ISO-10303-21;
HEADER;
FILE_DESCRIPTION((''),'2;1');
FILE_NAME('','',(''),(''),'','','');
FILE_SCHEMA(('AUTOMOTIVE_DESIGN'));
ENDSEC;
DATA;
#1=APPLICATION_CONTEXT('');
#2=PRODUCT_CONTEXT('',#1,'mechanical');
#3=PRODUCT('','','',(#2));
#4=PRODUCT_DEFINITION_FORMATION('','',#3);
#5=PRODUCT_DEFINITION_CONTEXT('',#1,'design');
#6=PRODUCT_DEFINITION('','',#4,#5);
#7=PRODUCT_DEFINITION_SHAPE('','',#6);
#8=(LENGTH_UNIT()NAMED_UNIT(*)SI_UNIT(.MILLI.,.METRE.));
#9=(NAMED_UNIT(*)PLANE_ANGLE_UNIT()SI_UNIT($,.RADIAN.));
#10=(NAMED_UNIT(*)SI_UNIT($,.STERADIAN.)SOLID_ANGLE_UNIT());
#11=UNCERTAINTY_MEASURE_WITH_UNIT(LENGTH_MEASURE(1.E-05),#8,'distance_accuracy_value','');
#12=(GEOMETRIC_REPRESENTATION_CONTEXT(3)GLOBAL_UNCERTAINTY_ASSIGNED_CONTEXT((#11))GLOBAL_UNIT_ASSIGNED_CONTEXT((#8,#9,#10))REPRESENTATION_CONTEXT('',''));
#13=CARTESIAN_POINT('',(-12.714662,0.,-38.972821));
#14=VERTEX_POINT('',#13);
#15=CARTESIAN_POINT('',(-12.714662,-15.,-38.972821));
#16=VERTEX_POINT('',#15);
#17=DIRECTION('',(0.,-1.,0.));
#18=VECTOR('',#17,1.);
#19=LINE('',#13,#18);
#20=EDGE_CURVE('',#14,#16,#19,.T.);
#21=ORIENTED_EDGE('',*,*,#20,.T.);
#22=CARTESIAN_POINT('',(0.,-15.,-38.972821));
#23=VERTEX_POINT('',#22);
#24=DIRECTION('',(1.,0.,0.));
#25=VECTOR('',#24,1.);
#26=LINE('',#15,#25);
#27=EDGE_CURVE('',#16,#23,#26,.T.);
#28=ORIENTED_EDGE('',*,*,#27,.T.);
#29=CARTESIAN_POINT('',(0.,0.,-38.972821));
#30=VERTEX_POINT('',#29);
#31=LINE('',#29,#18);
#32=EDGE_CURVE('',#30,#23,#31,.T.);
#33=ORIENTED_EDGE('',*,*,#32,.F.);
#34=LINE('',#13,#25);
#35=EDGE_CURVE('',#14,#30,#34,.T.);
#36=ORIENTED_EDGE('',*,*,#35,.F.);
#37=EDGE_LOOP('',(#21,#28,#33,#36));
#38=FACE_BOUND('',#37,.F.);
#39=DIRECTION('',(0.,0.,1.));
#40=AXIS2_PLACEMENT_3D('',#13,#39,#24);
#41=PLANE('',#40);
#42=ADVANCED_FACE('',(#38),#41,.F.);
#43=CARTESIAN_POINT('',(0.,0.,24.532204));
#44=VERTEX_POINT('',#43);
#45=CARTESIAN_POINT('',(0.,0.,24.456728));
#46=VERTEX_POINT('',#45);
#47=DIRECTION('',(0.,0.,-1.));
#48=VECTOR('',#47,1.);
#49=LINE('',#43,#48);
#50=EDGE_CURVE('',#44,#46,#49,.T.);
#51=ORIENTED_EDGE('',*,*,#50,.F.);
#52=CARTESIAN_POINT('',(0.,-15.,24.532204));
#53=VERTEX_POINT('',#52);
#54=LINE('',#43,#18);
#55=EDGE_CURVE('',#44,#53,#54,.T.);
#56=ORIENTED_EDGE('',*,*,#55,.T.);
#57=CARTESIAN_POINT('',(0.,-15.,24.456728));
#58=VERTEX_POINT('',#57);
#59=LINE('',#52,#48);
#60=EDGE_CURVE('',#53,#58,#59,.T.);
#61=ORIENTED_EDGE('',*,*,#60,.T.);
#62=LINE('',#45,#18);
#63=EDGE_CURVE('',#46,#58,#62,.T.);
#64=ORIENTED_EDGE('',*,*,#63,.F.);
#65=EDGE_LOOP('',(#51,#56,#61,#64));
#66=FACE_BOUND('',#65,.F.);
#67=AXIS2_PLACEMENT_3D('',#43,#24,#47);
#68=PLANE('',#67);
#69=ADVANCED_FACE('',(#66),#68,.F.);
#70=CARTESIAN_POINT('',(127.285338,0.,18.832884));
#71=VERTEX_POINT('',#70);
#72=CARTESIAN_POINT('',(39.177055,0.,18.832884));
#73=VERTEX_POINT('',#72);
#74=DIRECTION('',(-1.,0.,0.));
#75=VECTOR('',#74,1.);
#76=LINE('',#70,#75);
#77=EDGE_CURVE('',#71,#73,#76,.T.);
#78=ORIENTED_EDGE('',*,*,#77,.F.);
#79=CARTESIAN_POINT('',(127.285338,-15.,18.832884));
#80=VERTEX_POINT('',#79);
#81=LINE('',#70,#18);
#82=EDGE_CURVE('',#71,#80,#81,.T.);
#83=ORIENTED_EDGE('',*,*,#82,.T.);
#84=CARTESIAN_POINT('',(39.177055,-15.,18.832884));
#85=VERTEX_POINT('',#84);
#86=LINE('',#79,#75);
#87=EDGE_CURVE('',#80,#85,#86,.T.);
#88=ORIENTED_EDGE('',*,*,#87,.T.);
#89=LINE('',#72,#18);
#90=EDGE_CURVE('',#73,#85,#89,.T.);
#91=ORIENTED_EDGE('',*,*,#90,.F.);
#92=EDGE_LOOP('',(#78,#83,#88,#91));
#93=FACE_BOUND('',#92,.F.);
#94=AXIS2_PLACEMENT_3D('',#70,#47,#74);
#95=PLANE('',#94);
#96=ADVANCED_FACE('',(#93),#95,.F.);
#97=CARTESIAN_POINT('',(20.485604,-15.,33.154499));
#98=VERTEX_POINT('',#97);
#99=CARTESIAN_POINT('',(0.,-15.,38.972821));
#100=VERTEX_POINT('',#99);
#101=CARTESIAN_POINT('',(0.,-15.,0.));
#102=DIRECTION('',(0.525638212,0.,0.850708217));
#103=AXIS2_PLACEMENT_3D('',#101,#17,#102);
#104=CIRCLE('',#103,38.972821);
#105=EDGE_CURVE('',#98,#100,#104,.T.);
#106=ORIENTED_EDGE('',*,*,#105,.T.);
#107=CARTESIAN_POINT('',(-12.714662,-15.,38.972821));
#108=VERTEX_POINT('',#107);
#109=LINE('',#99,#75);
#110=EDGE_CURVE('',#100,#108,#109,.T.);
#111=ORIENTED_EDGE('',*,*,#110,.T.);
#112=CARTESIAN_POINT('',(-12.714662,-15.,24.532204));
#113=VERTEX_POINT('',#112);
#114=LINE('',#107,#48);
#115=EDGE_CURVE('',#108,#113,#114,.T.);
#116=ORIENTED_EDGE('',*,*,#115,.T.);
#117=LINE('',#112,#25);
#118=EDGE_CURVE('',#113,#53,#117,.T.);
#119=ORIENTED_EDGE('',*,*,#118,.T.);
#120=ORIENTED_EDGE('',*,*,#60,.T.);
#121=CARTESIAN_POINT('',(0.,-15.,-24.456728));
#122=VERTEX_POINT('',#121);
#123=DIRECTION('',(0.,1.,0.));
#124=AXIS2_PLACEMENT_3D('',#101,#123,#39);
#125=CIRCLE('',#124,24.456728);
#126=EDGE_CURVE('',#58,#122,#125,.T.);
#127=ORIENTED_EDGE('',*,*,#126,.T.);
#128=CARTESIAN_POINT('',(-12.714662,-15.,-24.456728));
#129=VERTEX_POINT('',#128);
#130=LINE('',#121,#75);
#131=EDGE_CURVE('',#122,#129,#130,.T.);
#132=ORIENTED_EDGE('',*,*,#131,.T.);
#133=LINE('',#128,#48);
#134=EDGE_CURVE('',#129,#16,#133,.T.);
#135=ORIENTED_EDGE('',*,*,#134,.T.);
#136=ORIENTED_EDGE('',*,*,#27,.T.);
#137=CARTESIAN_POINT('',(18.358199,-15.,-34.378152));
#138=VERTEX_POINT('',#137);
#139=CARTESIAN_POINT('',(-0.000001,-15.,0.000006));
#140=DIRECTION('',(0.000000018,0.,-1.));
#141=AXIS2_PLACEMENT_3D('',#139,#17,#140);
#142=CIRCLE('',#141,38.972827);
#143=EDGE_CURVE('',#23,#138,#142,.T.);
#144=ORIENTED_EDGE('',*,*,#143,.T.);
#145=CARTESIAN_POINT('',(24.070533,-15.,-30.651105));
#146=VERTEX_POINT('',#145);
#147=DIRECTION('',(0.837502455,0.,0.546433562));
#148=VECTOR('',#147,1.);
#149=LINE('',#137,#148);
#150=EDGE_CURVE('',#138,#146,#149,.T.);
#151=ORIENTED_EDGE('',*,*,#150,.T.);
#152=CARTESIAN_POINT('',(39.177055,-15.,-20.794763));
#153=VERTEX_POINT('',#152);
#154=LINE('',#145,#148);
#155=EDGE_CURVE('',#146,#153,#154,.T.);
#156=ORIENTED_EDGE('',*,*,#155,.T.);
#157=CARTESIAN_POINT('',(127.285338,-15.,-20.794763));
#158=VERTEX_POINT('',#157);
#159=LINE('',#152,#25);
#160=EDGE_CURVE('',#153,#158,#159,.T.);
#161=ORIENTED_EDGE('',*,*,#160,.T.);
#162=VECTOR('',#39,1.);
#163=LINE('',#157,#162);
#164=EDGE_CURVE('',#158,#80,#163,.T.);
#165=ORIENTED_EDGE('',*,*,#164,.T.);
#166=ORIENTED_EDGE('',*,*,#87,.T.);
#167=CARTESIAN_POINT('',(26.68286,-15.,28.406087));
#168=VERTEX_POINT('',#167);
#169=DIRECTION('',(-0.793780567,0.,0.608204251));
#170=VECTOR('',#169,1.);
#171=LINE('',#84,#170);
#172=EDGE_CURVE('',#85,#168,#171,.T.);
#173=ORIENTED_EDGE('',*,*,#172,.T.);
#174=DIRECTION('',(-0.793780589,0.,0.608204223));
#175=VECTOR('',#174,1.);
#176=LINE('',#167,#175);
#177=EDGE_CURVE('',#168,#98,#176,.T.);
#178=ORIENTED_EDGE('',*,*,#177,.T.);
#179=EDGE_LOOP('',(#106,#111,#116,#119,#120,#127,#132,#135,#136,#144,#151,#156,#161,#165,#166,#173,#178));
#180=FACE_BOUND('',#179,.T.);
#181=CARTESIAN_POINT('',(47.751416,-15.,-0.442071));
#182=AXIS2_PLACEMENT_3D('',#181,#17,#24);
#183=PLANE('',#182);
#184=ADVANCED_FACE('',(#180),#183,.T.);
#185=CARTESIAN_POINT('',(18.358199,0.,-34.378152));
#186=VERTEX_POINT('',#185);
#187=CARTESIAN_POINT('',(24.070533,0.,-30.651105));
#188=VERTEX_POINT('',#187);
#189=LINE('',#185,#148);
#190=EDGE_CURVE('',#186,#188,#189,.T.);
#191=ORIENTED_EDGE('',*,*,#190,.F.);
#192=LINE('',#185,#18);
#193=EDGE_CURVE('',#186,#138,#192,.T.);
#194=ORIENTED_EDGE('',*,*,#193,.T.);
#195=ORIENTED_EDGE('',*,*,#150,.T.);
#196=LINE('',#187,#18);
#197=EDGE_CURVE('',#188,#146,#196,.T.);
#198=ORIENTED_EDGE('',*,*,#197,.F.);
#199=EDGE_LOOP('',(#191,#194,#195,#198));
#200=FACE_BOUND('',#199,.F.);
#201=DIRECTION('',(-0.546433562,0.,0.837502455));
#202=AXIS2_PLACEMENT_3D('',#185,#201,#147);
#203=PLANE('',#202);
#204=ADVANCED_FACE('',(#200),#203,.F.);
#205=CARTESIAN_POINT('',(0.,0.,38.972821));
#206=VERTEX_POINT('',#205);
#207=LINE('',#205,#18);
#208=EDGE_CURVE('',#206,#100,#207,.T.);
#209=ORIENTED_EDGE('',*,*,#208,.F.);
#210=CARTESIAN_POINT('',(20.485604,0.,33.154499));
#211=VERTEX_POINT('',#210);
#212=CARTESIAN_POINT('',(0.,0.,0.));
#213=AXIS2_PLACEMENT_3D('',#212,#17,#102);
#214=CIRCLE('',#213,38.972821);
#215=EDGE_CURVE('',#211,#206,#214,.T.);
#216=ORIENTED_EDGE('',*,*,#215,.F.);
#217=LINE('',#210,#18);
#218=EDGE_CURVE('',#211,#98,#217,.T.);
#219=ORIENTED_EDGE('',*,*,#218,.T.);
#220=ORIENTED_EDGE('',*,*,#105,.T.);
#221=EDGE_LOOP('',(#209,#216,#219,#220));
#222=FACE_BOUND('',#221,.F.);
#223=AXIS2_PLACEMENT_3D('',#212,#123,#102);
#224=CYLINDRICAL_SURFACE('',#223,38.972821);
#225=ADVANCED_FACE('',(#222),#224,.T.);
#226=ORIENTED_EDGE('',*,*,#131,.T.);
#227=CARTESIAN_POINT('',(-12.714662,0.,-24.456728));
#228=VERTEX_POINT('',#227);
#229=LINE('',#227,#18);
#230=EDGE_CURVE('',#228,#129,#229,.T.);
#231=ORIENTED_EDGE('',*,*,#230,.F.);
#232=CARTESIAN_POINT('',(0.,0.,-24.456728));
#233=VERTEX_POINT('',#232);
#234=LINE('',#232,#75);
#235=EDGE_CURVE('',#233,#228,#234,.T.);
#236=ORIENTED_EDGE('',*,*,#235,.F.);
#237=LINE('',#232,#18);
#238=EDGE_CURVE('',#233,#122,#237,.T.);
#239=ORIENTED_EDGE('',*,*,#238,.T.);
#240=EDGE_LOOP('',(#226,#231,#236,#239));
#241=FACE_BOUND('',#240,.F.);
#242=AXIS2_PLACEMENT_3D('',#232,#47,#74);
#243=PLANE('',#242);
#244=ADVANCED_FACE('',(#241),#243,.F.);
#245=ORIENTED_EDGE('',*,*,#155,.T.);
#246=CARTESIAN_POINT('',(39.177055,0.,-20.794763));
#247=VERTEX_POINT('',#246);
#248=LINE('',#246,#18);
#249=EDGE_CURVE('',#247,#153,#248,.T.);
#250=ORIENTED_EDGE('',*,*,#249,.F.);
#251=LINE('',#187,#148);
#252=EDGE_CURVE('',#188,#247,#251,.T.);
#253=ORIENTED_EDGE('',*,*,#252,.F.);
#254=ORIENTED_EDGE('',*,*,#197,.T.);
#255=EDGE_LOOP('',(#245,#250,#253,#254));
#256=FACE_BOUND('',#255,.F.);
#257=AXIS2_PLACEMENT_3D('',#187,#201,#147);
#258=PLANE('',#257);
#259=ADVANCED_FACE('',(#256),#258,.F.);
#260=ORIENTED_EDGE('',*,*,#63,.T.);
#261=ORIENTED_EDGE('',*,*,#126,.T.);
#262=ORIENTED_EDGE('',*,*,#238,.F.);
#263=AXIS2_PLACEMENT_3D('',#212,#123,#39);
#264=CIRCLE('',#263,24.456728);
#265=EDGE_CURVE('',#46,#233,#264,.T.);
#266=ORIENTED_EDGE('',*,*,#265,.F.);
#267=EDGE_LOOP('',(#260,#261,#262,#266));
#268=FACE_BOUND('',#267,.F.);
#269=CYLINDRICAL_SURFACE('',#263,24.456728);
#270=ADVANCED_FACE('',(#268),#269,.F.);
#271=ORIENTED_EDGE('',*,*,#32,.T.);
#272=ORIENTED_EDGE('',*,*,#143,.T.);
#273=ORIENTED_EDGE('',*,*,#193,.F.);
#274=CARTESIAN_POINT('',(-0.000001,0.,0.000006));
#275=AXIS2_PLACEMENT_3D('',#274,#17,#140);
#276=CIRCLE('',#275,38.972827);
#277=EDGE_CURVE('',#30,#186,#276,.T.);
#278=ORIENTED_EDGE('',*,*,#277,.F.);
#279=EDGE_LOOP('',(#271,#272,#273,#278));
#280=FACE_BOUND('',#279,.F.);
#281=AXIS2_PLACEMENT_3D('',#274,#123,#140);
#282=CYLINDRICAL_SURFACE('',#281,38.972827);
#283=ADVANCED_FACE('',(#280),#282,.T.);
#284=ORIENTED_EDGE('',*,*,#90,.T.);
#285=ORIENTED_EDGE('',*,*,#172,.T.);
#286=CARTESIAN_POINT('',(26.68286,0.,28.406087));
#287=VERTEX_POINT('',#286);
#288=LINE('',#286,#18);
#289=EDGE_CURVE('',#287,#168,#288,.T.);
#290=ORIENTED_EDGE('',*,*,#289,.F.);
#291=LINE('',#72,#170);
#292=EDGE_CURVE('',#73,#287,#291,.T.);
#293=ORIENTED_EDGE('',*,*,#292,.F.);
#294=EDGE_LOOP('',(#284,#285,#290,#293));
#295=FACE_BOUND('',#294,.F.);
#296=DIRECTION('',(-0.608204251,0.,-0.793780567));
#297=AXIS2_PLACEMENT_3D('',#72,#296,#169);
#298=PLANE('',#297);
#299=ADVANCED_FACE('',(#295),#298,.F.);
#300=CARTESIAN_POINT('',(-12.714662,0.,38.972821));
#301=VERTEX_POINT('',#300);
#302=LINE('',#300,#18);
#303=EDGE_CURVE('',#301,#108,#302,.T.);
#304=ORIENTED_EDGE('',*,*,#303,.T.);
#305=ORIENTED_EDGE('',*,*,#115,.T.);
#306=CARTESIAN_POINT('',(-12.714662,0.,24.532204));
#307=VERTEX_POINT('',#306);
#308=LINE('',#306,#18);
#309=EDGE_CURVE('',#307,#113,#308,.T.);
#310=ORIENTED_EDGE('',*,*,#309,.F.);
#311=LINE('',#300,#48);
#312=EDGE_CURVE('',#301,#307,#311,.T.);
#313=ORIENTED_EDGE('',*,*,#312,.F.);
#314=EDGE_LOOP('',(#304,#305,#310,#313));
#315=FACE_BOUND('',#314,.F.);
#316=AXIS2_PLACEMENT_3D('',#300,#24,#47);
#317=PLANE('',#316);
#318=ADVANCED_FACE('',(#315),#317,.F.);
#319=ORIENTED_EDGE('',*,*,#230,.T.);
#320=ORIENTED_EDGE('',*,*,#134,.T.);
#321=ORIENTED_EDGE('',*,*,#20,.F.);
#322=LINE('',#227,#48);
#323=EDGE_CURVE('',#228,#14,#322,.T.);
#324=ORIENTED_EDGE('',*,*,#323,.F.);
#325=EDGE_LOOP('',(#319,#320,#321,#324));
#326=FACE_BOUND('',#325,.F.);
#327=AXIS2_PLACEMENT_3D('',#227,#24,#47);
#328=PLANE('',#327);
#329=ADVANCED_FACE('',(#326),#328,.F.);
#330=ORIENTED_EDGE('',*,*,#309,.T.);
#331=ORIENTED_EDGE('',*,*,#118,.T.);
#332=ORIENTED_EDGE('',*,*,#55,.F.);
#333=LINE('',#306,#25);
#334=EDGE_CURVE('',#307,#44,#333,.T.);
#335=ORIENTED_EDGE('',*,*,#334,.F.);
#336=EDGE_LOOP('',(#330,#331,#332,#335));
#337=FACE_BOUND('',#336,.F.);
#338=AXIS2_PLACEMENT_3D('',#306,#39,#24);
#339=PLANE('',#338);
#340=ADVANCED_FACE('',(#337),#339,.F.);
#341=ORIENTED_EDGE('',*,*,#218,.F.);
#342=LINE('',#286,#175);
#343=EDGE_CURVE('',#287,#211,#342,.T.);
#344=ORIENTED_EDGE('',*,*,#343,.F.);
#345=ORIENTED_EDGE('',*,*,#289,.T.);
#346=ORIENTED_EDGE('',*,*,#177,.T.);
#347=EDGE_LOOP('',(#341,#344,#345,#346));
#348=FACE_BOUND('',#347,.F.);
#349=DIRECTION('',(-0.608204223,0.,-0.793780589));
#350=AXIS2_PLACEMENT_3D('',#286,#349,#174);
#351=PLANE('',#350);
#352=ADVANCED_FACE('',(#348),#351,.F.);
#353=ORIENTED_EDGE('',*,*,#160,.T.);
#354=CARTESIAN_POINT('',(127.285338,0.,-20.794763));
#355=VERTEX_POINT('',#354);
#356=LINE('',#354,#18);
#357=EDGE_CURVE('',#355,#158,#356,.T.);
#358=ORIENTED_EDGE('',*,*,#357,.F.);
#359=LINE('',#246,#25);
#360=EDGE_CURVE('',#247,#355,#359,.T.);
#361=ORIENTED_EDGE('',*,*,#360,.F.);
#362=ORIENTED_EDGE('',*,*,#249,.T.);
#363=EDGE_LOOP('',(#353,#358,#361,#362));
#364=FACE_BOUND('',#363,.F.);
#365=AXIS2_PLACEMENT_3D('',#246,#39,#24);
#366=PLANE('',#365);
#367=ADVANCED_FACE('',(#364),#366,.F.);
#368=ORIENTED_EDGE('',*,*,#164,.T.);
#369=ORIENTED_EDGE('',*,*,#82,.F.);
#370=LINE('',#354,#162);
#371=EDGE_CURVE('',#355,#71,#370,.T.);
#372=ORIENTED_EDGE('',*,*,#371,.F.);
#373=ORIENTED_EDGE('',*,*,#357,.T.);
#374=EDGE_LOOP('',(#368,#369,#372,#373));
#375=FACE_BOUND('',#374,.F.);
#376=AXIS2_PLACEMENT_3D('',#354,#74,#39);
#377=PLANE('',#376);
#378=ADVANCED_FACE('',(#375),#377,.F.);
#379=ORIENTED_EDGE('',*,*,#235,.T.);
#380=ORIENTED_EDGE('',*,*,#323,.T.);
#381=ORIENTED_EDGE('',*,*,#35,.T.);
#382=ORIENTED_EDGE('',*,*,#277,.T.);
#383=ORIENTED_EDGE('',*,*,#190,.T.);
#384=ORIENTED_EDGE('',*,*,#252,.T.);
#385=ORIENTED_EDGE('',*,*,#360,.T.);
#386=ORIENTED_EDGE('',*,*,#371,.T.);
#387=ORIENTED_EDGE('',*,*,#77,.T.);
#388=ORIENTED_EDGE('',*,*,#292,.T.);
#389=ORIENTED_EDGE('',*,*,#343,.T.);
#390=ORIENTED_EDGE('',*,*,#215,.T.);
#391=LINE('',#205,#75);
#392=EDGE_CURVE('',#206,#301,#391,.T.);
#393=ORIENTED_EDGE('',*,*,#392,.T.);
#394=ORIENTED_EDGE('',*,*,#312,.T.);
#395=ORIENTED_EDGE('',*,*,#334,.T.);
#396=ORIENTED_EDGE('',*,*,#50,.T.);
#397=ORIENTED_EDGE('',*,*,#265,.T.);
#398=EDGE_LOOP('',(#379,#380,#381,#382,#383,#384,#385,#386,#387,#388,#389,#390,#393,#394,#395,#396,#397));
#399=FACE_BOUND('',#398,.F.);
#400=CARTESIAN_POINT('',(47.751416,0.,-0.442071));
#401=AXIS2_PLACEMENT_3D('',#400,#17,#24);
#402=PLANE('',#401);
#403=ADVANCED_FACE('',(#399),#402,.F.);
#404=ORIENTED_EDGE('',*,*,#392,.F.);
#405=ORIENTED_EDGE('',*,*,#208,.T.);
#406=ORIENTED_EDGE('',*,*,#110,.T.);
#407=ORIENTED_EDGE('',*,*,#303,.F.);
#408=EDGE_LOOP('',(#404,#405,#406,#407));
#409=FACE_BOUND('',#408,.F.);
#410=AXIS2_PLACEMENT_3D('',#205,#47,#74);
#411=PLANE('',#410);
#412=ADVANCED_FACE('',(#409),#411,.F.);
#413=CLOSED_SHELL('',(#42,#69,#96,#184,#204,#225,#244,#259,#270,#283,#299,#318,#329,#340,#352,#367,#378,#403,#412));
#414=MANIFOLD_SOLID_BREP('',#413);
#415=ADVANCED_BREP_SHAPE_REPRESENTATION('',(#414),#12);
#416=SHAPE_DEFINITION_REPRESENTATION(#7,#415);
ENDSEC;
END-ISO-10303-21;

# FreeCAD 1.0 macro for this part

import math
import FreeCAD as App
import Part
import Sketcher
from FreeCAD import Vector

doc = App.newDocument("Part")
body = doc.addObject("PartDesign::Body", "Body")

sketch1 = body.newObject("Sketcher::SketchObject", "Sketch")
sketch1.AttachmentSupport = (doc.getObject("XZ_Plane"), [""])
sketch1.MapMode = "FlatFace"
sketch1.addGeometry(Part.ArcOfCircle(Part.Circle(Vector(0, 0, 0), Vector(0, 0, 1), 24.456728), math.radians(-90), math.radians(90)), False)
sketch1.addGeometry(Part.LineSegment(Vector(0, -24.456728, 0), Vector(-12.714662, -24.456728, 0)), False)
sketch1.addGeometry(Part.LineSegment(Vector(-12.714662, -24.456728, 0), Vector(-12.714662, -38.972821, 0)), False)
sketch1.addGeometry(Part.LineSegment(Vector(-12.714662, -38.972821, 0), Vector(0, -38.972821, 0)), False)
sketch1.addGeometry(Part.ArcOfCircle(Part.Circle(Vector(-0.000001, 0.000006, 0), Vector(0, 0, 1), 38.972827), math.radians(-89.999999), math.radians(-61.897441)), False)
sketch1.addGeometry(Part.LineSegment(Vector(18.358199, -34.378152, 0), Vector(24.070533, -30.651105, 0)), False)
sketch1.addGeometry(Part.LineSegment(Vector(24.070533, -30.651105, 0), Vector(39.177055, -20.794763, 0)), False)
sketch1.addGeometry(Part.LineSegment(Vector(39.177055, -20.794763, 0), Vector(127.285338, -20.794763, 0)), False)
sketch1.addGeometry(Part.LineSegment(Vector(127.285338, -20.794763, 0), Vector(127.285338, 18.832884, 0)), False)
sketch1.addGeometry(Part.LineSegment(Vector(127.285338, 18.832884, 0), Vector(39.177055, 18.832884, 0)), False)
sketch1.addGeometry(Part.LineSegment(Vector(39.177055, 18.832884, 0), Vector(26.68286, 28.406087, 0)), False)
sketch1.addGeometry(Part.LineSegment(Vector(26.68286, 28.406087, 0), Vector(20.485604, 33.154499, 0)), False)
sketch1.addGeometry(Part.ArcOfCircle(Part.Circle(Vector(0, 0, 0), Vector(0, 0, 1), 38.972821), math.radians(58.288783), math.radians(90)), False)
sketch1.addGeometry(Part.LineSegment(Vector(0, 38.972821, 0), Vector(-12.714662, 38.972821, 0)), False)
sketch1.addGeometry(Part.LineSegment(Vector(-12.714662, 38.972821, 0), Vector(-12.714662, 24.532204, 0)), False)
sketch1.addGeometry(Part.LineSegment(Vector(-12.714662, 24.532204, 0), Vector(0, 24.532204, 0)), False)
sketch1.addGeometry(Part.LineSegment(Vector(0, 24.532204, 0), Vector(0, 24.456728, 0)), False)
sketch1.addConstraint(Sketcher.Constraint("Tangent", 0, 1, 1, 1))
sketch1.addConstraint(Sketcher.Constraint("Coincident", 1, 2, 2, 1))
sketch1.addConstraint(Sketcher.Constraint("Coincident", 2, 2, 3, 1))
sketch1.addConstraint(Sketcher.Constraint("Tangent", 3, 2, 4, 1))
sketch1.addConstraint(Sketcher.Constraint("Coincident", 4, 2, 5, 1))
sketch1.addConstraint(Sketcher.Constraint("Coincident", 5, 2, 6, 1))
sketch1.addConstraint(Sketcher.Constraint("Coincident", 6, 2, 7, 1))
sketch1.addConstraint(Sketcher.Constraint("Coincident", 7, 2, 8, 1))
sketch1.addConstraint(Sketcher.Constraint("Coincident", 8, 2, 9, 1))
sketch1.addConstraint(Sketcher.Constraint("Coincident", 9, 2, 10, 1))
sketch1.addConstraint(Sketcher.Constraint("Coincident", 10, 2, 11, 1))
sketch1.addConstraint(Sketcher.Constraint("Coincident", 11, 2, 12, 1))
sketch1.addConstraint(Sketcher.Constraint("Tangent", 12, 2, 13, 1))
sketch1.addConstraint(Sketcher.Constraint("Coincident", 13, 2, 14, 1))
sketch1.addConstraint(Sketcher.Constraint("Coincident", 14, 2, 15, 1))
sketch1.addConstraint(Sketcher.Constraint("Coincident", 15, 2, 16, 1))
sketch1.addConstraint(Sketcher.Constraint("Coincident", 16, 2, 0, 2))
sketch1.addConstraint(Sketcher.Constraint("Horizontal", 1))
sketch1.addConstraint(Sketcher.Constraint("Vertical", 2))
sketch1.addConstraint(Sketcher.Constraint("Horizontal", 3))
sketch1.addConstraint(Sketcher.Constraint("Horizontal", 7))
sketch1.addConstraint(Sketcher.Constraint("Vertical", 8))
sketch1.addConstraint(Sketcher.Constraint("Horizontal", 9))
sketch1.addConstraint(Sketcher.Constraint("Horizontal", 13))
sketch1.addConstraint(Sketcher.Constraint("Vertical", 14))
sketch1.addConstraint(Sketcher.Constraint("Horizontal", 15))
sketch1.addConstraint(Sketcher.Constraint("Vertical", 16))
sketch1.addConstraint(Sketcher.Constraint("Coincident", 0, 3, -1, 1))
sketch1.addConstraint(Sketcher.Constraint("Coincident", 4, 3, -1, 1))
sketch1.addConstraint(Sketcher.Constraint("Coincident", 12, 3, -1, 1))
sketch1.addConstraint(Sketcher.Constraint("Symmetric", 2, 2, 13, 2, -1))
sketch1.addConstraint(Sketcher.Constraint("PointOnObject", 15, 2, -2))
sketch1.addConstraint(Sketcher.Constraint("Parallel", 5, 6))
sketch1.addConstraint(Sketcher.Constraint("Parallel", 10, 11))
sketch1.addConstraint(Sketcher.Constraint("Vertical", 6, 2, 9, 2))
sketch1.addConstraint(Sketcher.Constraint("Radius", 12, 38.972821))
sketch1.addConstraint(Sketcher.Constraint("Radius", 0, 24.456728))
sketch1.addConstraint(Sketcher.Constraint("DistanceX", -1, 1, 4, 2, 18.358199))
sketch1.addConstraint(Sketcher.Constraint("DistanceY", -1, 1, 11, 2, 33.154499))
sketch1.addConstraint(Sketcher.Constraint("DistanceY", 4, 3, 14, 2, 24.532198))
sketch1.addConstraint(Sketcher.Constraint("Distance", 10, 15.740112))
sketch1.addConstraint(Sketcher.Constraint("DistanceX", 1, 2, 1, 1, 12.714662))
sketch1.addConstraint(Sketcher.Constraint("DistanceX", 7, 1, 7, 2, 88.108283))
sketch1.addConstraint(Sketcher.Constraint("DistanceY", 8, 1, 8, 2, 39.627647))
sketch1.addConstraint(Sketcher.Constraint("DistanceX", -1, 1, 10, 2, 26.68286))
sketch1.addConstraint(Sketcher.Constraint("DistanceY", 4, 2, 6, 2, 13.583389))
sketch1.addConstraint(Sketcher.Constraint("DistanceY", 5, 2, 8, 2, 49.483989))
pad1 = body.newObject("PartDesign::Pad", "Pad")
pad1.Profile = sketch1
pad1.Length = 15

doc.recompute()
